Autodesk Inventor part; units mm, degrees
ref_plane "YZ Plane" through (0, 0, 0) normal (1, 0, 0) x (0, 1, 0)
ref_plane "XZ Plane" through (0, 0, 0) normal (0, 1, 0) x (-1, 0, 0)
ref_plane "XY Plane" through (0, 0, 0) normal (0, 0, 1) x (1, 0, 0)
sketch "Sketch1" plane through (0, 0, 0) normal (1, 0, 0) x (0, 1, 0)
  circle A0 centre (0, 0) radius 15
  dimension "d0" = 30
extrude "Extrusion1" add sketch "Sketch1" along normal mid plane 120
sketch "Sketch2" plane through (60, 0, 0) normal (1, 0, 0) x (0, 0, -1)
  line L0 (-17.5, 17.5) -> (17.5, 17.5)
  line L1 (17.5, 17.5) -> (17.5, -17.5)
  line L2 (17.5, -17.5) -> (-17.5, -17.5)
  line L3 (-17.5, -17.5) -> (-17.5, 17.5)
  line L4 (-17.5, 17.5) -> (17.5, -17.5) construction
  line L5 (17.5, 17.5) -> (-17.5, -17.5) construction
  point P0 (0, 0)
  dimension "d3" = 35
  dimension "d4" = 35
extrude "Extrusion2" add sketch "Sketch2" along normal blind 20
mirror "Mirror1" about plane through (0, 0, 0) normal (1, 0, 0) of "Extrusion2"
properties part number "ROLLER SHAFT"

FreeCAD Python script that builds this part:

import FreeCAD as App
import Part
import Sketcher

V = App.Vector


def add_polygon(sketch, points):
    """Adds a closed chain of lines whose ends are joined by coincident constraints."""
    first, n = sketch.GeometryCount, len(points)
    for a, b in zip(points, points[1:] + points[:1]):
        sketch.addGeometry(Part.LineSegment(App.Vector(*a, 0), App.Vector(*b, 0)), False)
    for i in range(n):
        sketch.addConstraint(Sketcher.Constraint("Coincident", first + i, 2, first + (i + 1) % n, 1))

doc = App.newDocument("Part")
body = doc.addObject("PartDesign::Body", "Body")

# Sketch on YZ plane
sketch1 = body.newObject("Sketcher::SketchObject", "Sketch")
sketch1.AttachmentSupport = (doc.getObject("YZ_Plane"), [""])
sketch1.MapMode = "FlatFace"
sketch1.addGeometry(Part.Circle(V(0, 0, 0), V(0, 0, 1), 15), False)
sketch1.addConstraint(Sketcher.Constraint("Coincident", 0, 3, -1, 1))
sketch1.addConstraint(Sketcher.Constraint("Diameter", 0, 30.0))
pad1 = body.newObject("PartDesign::Pad", "Pad")
pad1.Profile = sketch1
pad1.Length = 120
pad1.Midplane = True

# Sketch on YZ plane
sketch2 = body.newObject("Sketcher::SketchObject", "Sketch001")
sketch2.AttachmentSupport = (doc.getObject("YZ_Plane"), [""])
sketch2.MapMode = "FlatFace"
sketch2.AttachmentOffset = App.Placement(V(0, 0, 60), App.Rotation())
add_polygon(sketch2, [(18, -18), (18, 18), (-18, 18), (-18, -18)])  # lines 0-3
sketch2.addConstraint(Sketcher.Constraint("Vertical", 0))
sketch2.addConstraint(Sketcher.Constraint("Horizontal", 1))
sketch2.addConstraint(Sketcher.Constraint("Vertical", 2))
sketch2.addConstraint(Sketcher.Constraint("Horizontal", 3))
sketch2.addConstraint(Sketcher.Constraint("Symmetric", 0, 2, 2, 2, -1, 1))
sketch2.addConstraint(Sketcher.Constraint("Equal", 3, 0))
sketch2.addConstraint(Sketcher.Constraint("DistanceX", 1, 2, 1, 1, 35.0))
pad2 = body.newObject("PartDesign::Pad", "Pad001")
pad2.Profile = sketch2
pad2.Length = 20
doc.recompute()

mirrored = body.newObject("PartDesign::Mirrored", "Mirrored")
mirrored.Originals = [pad2]
mirrored.MirrorPlane = (doc.getObject("YZ_Plane"), [""])
body.Tip = mirrored

doc.recompute()
